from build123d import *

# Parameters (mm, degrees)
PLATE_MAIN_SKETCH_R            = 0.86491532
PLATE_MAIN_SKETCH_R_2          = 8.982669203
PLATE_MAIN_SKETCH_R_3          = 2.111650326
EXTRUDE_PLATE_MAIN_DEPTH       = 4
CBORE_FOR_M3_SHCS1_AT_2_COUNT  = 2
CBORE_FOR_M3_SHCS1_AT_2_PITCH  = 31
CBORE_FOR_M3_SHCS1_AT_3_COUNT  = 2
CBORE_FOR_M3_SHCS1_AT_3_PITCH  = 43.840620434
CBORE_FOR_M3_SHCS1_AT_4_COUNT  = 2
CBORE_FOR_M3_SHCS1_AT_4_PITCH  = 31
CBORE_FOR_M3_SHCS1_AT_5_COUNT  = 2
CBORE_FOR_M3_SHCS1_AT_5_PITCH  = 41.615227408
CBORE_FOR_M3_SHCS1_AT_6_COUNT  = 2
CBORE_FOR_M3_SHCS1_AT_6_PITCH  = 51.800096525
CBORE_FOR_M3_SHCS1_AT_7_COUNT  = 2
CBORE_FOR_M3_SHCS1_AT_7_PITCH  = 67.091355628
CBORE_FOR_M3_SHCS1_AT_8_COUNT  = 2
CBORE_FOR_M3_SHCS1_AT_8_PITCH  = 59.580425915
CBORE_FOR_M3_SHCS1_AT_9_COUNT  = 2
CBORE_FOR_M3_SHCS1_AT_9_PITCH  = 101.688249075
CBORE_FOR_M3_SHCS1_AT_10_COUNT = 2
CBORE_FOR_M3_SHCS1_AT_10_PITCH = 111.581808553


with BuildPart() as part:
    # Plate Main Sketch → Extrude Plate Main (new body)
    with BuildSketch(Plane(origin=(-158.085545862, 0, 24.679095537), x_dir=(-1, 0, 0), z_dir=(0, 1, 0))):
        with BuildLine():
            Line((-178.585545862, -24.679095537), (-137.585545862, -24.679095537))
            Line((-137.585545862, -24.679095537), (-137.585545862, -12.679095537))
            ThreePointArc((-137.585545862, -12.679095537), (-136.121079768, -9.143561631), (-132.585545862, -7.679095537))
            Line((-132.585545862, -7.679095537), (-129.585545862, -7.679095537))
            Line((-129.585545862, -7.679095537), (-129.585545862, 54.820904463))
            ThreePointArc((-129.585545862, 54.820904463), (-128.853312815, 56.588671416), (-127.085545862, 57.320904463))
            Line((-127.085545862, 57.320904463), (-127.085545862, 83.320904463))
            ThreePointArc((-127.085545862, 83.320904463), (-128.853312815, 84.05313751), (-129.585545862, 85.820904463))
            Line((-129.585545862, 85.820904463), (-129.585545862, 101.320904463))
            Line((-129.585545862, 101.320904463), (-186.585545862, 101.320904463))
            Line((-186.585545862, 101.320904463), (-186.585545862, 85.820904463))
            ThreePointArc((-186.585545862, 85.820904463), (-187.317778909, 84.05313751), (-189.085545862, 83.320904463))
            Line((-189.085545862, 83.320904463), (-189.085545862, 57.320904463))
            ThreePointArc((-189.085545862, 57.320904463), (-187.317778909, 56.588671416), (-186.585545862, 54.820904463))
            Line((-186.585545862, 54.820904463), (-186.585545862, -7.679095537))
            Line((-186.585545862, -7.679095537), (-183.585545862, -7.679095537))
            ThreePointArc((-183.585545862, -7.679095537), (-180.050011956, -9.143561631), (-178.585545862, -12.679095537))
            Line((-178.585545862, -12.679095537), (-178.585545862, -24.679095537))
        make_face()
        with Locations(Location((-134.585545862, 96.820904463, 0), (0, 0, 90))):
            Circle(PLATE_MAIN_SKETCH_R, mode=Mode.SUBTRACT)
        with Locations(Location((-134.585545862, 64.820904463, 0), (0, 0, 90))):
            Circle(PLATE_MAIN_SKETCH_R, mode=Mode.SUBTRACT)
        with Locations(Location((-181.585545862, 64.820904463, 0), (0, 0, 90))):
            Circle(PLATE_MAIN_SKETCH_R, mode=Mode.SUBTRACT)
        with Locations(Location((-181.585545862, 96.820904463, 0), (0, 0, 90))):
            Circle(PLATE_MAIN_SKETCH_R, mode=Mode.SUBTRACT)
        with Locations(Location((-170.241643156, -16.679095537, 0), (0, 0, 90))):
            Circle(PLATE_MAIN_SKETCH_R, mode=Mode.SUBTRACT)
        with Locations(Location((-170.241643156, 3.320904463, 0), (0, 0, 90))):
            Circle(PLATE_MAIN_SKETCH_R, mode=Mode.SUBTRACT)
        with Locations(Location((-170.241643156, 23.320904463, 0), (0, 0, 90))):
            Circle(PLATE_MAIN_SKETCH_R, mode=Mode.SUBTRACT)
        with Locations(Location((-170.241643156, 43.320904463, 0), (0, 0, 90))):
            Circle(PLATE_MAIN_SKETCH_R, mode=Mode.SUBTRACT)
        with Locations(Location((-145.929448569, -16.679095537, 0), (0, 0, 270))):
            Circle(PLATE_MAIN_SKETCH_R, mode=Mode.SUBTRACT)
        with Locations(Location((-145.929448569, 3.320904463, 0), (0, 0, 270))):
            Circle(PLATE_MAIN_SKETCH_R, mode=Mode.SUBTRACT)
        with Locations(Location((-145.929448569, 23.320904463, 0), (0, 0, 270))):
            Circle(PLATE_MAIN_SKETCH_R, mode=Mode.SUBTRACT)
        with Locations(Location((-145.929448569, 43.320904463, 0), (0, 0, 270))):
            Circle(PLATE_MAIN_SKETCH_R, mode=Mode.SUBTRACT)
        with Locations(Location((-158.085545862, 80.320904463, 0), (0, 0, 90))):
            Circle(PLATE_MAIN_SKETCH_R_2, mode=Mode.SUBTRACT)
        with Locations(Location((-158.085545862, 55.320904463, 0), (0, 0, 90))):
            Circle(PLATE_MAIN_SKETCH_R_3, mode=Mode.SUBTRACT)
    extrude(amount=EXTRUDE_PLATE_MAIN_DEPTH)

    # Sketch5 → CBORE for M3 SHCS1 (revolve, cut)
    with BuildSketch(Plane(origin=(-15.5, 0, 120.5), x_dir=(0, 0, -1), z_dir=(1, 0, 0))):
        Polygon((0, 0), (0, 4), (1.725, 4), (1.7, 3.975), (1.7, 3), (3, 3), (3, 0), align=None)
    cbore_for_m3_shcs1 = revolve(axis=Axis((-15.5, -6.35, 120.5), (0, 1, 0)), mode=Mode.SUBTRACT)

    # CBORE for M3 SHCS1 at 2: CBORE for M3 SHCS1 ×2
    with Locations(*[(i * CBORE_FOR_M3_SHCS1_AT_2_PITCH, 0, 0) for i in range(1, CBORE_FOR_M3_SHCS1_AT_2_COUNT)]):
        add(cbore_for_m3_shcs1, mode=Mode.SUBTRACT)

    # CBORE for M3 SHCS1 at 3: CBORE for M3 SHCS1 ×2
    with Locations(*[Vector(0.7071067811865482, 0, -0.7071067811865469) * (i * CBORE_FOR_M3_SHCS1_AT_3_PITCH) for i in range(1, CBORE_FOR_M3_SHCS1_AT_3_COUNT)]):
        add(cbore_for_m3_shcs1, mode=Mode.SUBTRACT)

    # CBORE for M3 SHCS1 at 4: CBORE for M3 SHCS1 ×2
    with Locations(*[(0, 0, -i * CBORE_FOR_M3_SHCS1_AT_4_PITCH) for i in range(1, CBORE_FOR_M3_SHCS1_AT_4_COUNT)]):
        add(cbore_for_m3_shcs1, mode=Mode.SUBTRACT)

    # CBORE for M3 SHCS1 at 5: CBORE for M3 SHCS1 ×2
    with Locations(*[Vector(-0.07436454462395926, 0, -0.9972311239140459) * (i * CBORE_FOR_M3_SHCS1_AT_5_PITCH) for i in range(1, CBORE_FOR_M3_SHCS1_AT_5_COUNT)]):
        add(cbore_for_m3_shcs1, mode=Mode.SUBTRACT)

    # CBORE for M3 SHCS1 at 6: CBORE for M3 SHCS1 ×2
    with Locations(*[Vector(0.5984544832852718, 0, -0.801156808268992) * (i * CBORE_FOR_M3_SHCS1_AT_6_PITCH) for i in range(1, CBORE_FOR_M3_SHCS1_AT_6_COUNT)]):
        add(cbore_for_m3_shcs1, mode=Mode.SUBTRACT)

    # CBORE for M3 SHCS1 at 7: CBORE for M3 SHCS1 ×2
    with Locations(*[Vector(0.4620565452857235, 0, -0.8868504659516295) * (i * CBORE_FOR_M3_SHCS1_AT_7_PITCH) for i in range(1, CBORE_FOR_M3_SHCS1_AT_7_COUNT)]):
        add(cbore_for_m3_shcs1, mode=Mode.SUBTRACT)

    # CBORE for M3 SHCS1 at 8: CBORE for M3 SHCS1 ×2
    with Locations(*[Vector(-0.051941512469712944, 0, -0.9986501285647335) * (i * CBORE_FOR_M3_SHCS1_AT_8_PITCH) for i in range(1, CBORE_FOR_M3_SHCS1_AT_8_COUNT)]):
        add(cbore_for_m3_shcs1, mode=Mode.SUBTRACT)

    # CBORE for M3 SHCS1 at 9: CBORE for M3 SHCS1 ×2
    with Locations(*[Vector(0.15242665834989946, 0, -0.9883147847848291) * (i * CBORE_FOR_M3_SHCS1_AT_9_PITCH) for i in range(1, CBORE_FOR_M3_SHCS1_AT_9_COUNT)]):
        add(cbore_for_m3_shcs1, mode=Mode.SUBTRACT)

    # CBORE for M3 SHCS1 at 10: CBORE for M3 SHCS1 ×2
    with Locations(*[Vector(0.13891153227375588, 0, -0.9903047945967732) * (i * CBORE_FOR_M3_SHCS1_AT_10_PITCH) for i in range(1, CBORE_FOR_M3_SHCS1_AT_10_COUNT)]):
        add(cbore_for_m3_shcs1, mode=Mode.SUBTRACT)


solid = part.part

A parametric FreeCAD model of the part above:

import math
import FreeCAD as App
import Part
import Sketcher
from FreeCAD import Vector
Q = App.Units.Quantity


def add_polygon(sketch, points):
    """Adds a closed chain of lines whose ends are joined by coincident constraints."""
    first, n = sketch.GeometryCount, len(points)
    for a, b in zip(points, points[1:] + points[:1]):
        sketch.addGeometry(Part.LineSegment(App.Vector(*a, 0), App.Vector(*b, 0)), False)
    for i in range(n):
        sketch.addConstraint(Sketcher.Constraint("Coincident", first + i, 2, first + (i + 1) % n, 1))

doc = App.newDocument("Part")
body = doc.addObject("PartDesign::Body", "Body")

sketch1 = body.newObject("Sketcher::SketchObject", "Sketch")
sketch1.AttachmentSupport = (doc.getObject("XZ_Plane"), [""])
sketch1.MapMode = "FlatFace"
sketch1.addGeometry(Part.LineSegment(Vector(20.5, 0, 0), Vector(-20.5, 0, 0)), False)
sketch1.addGeometry(Part.LineSegment(Vector(-20.5, 0, 0), Vector(-20.5, 12, 0)), False)
sketch1.addGeometry(Part.ArcOfCircle(Part.Circle(Vector(-25.5, 12, 0), Vector(0, 0, 1), 5), math.radians(0), math.radians(90)), False)
sketch1.addGeometry(Part.LineSegment(Vector(-25.5, 17, 0), Vector(-28.5, 17, 0)), False)
sketch1.addGeometry(Part.LineSegment(Vector(-28.5, 17, 0), Vector(-28.5, 79.5, 0)), False)
sketch1.addGeometry(Part.ArcOfCircle(Part.Circle(Vector(-31, 79.5, 0), Vector(0, 0, 1), 2.5), math.radians(0), math.radians(90)), False)
sketch1.addGeometry(Part.LineSegment(Vector(-31, 82, 0), Vector(-31, 108, 0)), False)
sketch1.addGeometry(Part.ArcOfCircle(Part.Circle(Vector(-31, 110.5, 0), Vector(0, 0, 1), 2.5), math.radians(-90), math.radians(0)), False)
sketch1.addGeometry(Part.LineSegment(Vector(-28.5, 110.5, 0), Vector(-28.5, 126, 0)), False)
sketch1.addGeometry(Part.LineSegment(Vector(-28.5, 126, 0), Vector(28.5, 126, 0)), False)
sketch1.addGeometry(Part.LineSegment(Vector(28.5, 126, 0), Vector(28.5, 110.5, 0)), False)
sketch1.addGeometry(Part.ArcOfCircle(Part.Circle(Vector(31, 110.5, 0), Vector(0, 0, 1), 2.5), math.radians(180), math.radians(270)), False)
sketch1.addGeometry(Part.LineSegment(Vector(31, 108, 0), Vector(31, 82, 0)), False)
sketch1.addGeometry(Part.ArcOfCircle(Part.Circle(Vector(31, 79.5, 0), Vector(0, 0, 1), 2.5), math.radians(90), math.radians(180)), False)
sketch1.addGeometry(Part.LineSegment(Vector(28.5, 79.5, 0), Vector(28.5, 17, 0)), False)
sketch1.addGeometry(Part.LineSegment(Vector(28.5, 17, 0), Vector(25.5, 17, 0)), False)
sketch1.addGeometry(Part.ArcOfCircle(Part.Circle(Vector(25.5, 12, 0), Vector(0, 0, 1), 5), math.radians(90), math.radians(180)), False)
sketch1.addGeometry(Part.LineSegment(Vector(20.5, 12, 0), Vector(20.5, 0, 0)), False)
sketch1.addGeometry(Part.Circle(Vector(12.2, 8, 0), Vector(0, 0, 1), 0.9), False)
sketch1.addGeometry(Part.Circle(Vector(12.2, 28, 0), Vector(0, 0, 1), 0.9), False)
sketch1.addGeometry(Part.Circle(Vector(12.2, 48, 0), Vector(0, 0, 1), 0.9), False)
sketch1.addGeometry(Part.Circle(Vector(-12.2, 8, 0), Vector(0, 0, 1), 0.9), False)
sketch1.addGeometry(Part.Circle(Vector(-12.2, 28, 0), Vector(0, 0, 1), 0.9), False)
sketch1.addGeometry(Part.Circle(Vector(-12.2, 48, 0), Vector(0, 0, 1), 0.9), False)
sketch1.addGeometry(Part.Circle(Vector(23.5, 89.5, 0), Vector(0, 0, 1), 0.9), False)
sketch1.addGeometry(Part.Circle(Vector(12.2, 68, 0), Vector(0, 0, 1), 0.9), False)
sketch1.addGeometry(Part.Circle(Vector(23.5, 121.5, 0), Vector(0, 0, 1), 0.9), False)
sketch1.addGeometry(Part.Circle(Vector(-12.2, 68, 0), Vector(0, 0, 1), 0.9), False)
sketch1.addGeometry(Part.Circle(Vector(0, 80, 0), Vector(0, 0, 1), 2.1), False)
sketch1.addGeometry(Part.Circle(Vector(-23.5, 89.5, 0), Vector(0, 0, 1), 0.9), False)
sketch1.addGeometry(Part.Circle(Vector(0, 105, 0), Vector(0, 0, 1), 9), False)
sketch1.addGeometry(Part.Circle(Vector(-23.5, 121.5, 0), Vector(0, 0, 1), 0.9), False)
sketch1.addConstraint(Sketcher.Constraint("Coincident", 0, 2, 1, 1))
sketch1.addConstraint(Sketcher.Constraint("Tangent", 1, 2, 2, 1))
sketch1.addConstraint(Sketcher.Constraint("Tangent", 2, 2, 3, 1))
sketch1.addConstraint(Sketcher.Constraint("Coincident", 3, 2, 4, 1))
sketch1.addConstraint(Sketcher.Constraint("Tangent", 4, 2, 5, 1))
sketch1.addConstraint(Sketcher.Constraint("Coincident", 5, 2, 6, 1))
sketch1.addConstraint(Sketcher.Constraint("Coincident", 6, 2, 7, 1))
sketch1.addConstraint(Sketcher.Constraint("Tangent", 7, 2, 8, 1))
sketch1.addConstraint(Sketcher.Constraint("Coincident", 8, 2, 9, 1))
sketch1.addConstraint(Sketcher.Constraint("Coincident", 9, 2, 10, 1))
sketch1.addConstraint(Sketcher.Constraint("Tangent", 10, 2, 11, 1))
sketch1.addConstraint(Sketcher.Constraint("Coincident", 11, 2, 12, 1))
sketch1.addConstraint(Sketcher.Constraint("Coincident", 12, 2, 13, 1))
sketch1.addConstraint(Sketcher.Constraint("Tangent", 13, 2, 14, 1))
sketch1.addConstraint(Sketcher.Constraint("Coincident", 14, 2, 15, 1))
sketch1.addConstraint(Sketcher.Constraint("Tangent", 15, 2, 16, 1))
sketch1.addConstraint(Sketcher.Constraint("Tangent", 16, 2, 17, 1))
sketch1.addConstraint(Sketcher.Constraint("Coincident", 17, 2, 0, 1))
sketch1.addConstraint(Sketcher.Constraint("Horizontal", 0))
sketch1.addConstraint(Sketcher.Constraint("Vertical", 1))
sketch1.addConstraint(Sketcher.Constraint("Horizontal", 3))
sketch1.addConstraint(Sketcher.Constraint("Vertical", 4))
sketch1.addConstraint(Sketcher.Constraint("Vertical", 6))
sketch1.addConstraint(Sketcher.Constraint("Vertical", 8))
sketch1.addConstraint(Sketcher.Constraint("Horizontal", 9))
sketch1.addConstraint(Sketcher.Constraint("Vertical", 10))
sketch1.addConstraint(Sketcher.Constraint("Vertical", 12))
sketch1.addConstraint(Sketcher.Constraint("Vertical", 14))
sketch1.addConstraint(Sketcher.Constraint("Horizontal", 15))
sketch1.addConstraint(Sketcher.Constraint("Vertical", 17))
sketch1.addConstraint(Sketcher.Constraint("Equal", 5, 7))
sketch1.addConstraint(Sketcher.Constraint("Equal", 7, 11))
sketch1.addConstraint(Sketcher.Constraint("Equal", 11, 13))
sketch1.addConstraint(Sketcher.Constraint("Equal", 2, 16))
sketch1.addConstraint(Sketcher.Constraint("Equal", 18, 19))
sketch1.addConstraint(Sketcher.Constraint("Equal", 19, 20))
sketch1.addConstraint(Sketcher.Constraint("Equal", 20, 21))
sketch1.addConstraint(Sketcher.Constraint("Equal", 21, 22))
sketch1.addConstraint(Sketcher.Constraint("Equal", 22, 23))
sketch1.addConstraint(Sketcher.Constraint("Equal", 23, 24))
sketch1.addConstraint(Sketcher.Constraint("Equal", 24, 25))
sketch1.addConstraint(Sketcher.Constraint("Equal", 25, 26))
sketch1.addConstraint(Sketcher.Constraint("Equal", 26, 27))
sketch1.addConstraint(Sketcher.Constraint("Equal", 27, 29))
sketch1.addConstraint(Sketcher.Constraint("Equal", 29, 31))
sketch1.addConstraint(Sketcher.Constraint("Symmetric", 0, 2, 17, 2, -1, 1))
sketch1.addConstraint(Sketcher.Constraint("Symmetric", 7, 3, 11, 3, -2))
sketch1.addConstraint(Sketcher.Constraint("Symmetric", 5, 3, 13, 3, -2))
sketch1.addConstraint(Sketcher.Constraint("Symmetric", 18, 3, 21, 3, -2))
sketch1.addConstraint(Sketcher.Constraint("Symmetric", 19, 3, 22, 3, -2))
sketch1.addConstraint(Sketcher.Constraint("Symmetric", 20, 3, 23, 3, -2))
sketch1.addConstraint(Sketcher.Constraint("Symmetric", 25, 3, 27, 3, -2))
sketch1.addConstraint(Sketcher.Constraint("Symmetric", 24, 3, 29, 3, -2))
sketch1.addConstraint(Sketcher.Constraint("Symmetric", 26, 3, 31, 3, -2))
sketch1.addConstraint(Sketcher.Constraint("PointOnObject", 28, 3, -2))
sketch1.addConstraint(Sketcher.Constraint("PointOnObject", 30, 3, -2))
sketch1.addConstraint(Sketcher.Constraint("Horizontal", 2, 3, 16, 3))
sketch1.addConstraint(Sketcher.Constraint("Vertical", 5, 3, 7, 3))
sketch1.addConstraint(Sketcher.Constraint("Vertical", 18, 3, 19, 3))
sketch1.addConstraint(Sketcher.Constraint("Vertical", 19, 3, 20, 3))
sketch1.addConstraint(Sketcher.Constraint("Vertical", 20, 3, 25, 3))
sketch1.addConstraint(Sketcher.Constraint("Vertical", 24, 3, 26, 3))
sketch1.addConstraint(Sketcher.Constraint("Vertical", 7, 3, 5, 2))
sketch1.addConstraint(Sketcher.Constraint("Vertical", 13, 3, 11, 2))
sketch1.addConstraint(Sketcher.Constraint("Radius", 2, 5.0))
sketch1.addConstraint(Sketcher.Constraint("Radius", 5, 2.5))
sketch1.addConstraint(Sketcher.Constraint("DistanceX", 0, 2, 0, 1, 41.0))
sketch1.addConstraint(Sketcher.Constraint("DistanceX", 3, 2, 3, 1, 3.0))
sketch1.addConstraint(Sketcher.Constraint("DistanceY", 1, 1, 1, 2, 12.0))
sketch1.addConstraint(Sketcher.Constraint("DistanceY", 6, 1, 6, 2, 26.0))
sketch1.addConstraint(Sketcher.Constraint("DistanceY", 4, 1, 4, 2, 62.5))
sketch1.addConstraint(Sketcher.Constraint("DistanceY", 8, 1, 8, 2, 15.5))
sketch1.addConstraint(Sketcher.Constraint("DistanceY", -1, 1, 18, 3, 8.0))
sketch1.addConstraint(Sketcher.Constraint("DistanceY", -1, 1, 19, 3, 28.0))
sketch1.addConstraint(Sketcher.Constraint("DistanceY", -1, 1, 20, 3, 48.0))
sketch1.addConstraint(Sketcher.Constraint("DistanceY", -1, 1, 25, 3, 68.0))
sketch1.addConstraint(Sketcher.Constraint("DistanceY", -1, 1, 28, 3, 80.0))
sketch1.addConstraint(Sketcher.Constraint("DistanceY", -1, 1, 30, 3, 105.0))
sketch1.addConstraint(Sketcher.Constraint("DistanceY", 13, 3, 24, 3, 10.0))
sketch1.addConstraint(Sketcher.Constraint("DistanceY", 11, 3, 26, 3, 11.0))
sketch1.addConstraint(Sketcher.Constraint("DistanceX", 31, 3, 26, 3, 47.0))
sketch1.addConstraint(Sketcher.Constraint("Diameter", 28, 4.223301))
sketch1.addConstraint(Sketcher.Constraint("Diameter", 18, 1.729831))
sketch1.addConstraint(Sketcher.Constraint("Diameter", 30, 17.965338))
sketch1.addConstraint(Sketcher.Constraint("DistanceX", -1, 1, 18, 3, 12.156097))
pad1 = body.newObject("PartDesign::Pad", "Pad")
pad1.Profile = sketch1
pad1.Length = 4
pad1.Reversed = True

sketch2 = body.newObject("Sketcher::SketchObject", "Sketch001")
sketch2.AttachmentSupport = (doc.getObject("YZ_Plane"), [""])
sketch2.MapMode = "FlatFace"
sketch2.AttachmentOffset = App.Placement(Vector(0, 0, -15.5), App.Rotation())
add_polygon(sketch2, [(4, 120.5), (0, 120.5), (0, 117.5), (3, 117.5), (3, 118.8), (3.975, 118.8), (4, 118.775)])
sketch2.addGeometry(Part.LineSegment(Vector(0, 120.5, 0), Vector(4, 120.5, 0)), True)
sketch2.addConstraint(Sketcher.Constraint("Horizontal", 0))
sketch2.addConstraint(Sketcher.Constraint("Vertical", 1))
sketch2.addConstraint(Sketcher.Constraint("Horizontal", 2))
sketch2.addConstraint(Sketcher.Constraint("Vertical", 3))
sketch2.addConstraint(Sketcher.Constraint("Horizontal", 4))
sketch2.addConstraint(Sketcher.Constraint("Vertical", 6))
sketch2.addConstraint(Sketcher.Constraint("Horizontal", 7))
sketch2.addConstraint(Sketcher.Constraint("Coincident", 7, 1, 0, 2))
sketch2.addConstraint(Sketcher.Constraint("PointOnObject", 0, 2, -2))
sketch2.addConstraint(Sketcher.Constraint("Vertical", 5, 2, 7, 2))
sketch2.addConstraint(Sketcher.Constraint("Equal", 2, 1))
sketch2.addConstraint(Sketcher.Constraint("DistanceX", 0, 2, 0, 1, 4.0))
sketch2.addConstraint(Sketcher.Constraint("DistanceX", 2, 1, 2, 2, 3.0))
sketch2.addConstraint(Sketcher.Constraint("Angle", 5, Q("-45 deg")))
sketch2.addConstraint(Sketcher.Constraint("DistanceY", 3, 1, 3, 2, 1.3))
sketch2.addConstraint(Sketcher.Constraint("DistanceY", -1, 1, 0, 2, 120.5))
sketch2.addConstraint(Sketcher.Constraint("DistanceX", 4, 1, 4, 2, 0.975))
groove = body.newObject("PartDesign::Groove", "Groove")
groove.Profile = sketch2
groove.ReferenceAxis = (sketch2, ["Axis0"])
groove.Angle = 360
doc.recompute()

linearpattern = body.newObject("PartDesign::LinearPattern", "LinearPattern")
linearpattern.Originals = [groove]
linearpattern.Direction = (doc.getObject("X_Axis"), [""])
linearpattern.Mode = "offset"
linearpattern.Offset = 31
linearpattern.Occurrences = 2
body.Tip = linearpattern
doc.recompute()

datumline = body.newObject("PartDesign::Line", "DatumLine")
datumline.Placement = App.Placement(Vector(0, 0, 0), App.Rotation(Vector(0, 0, 1), Vector(0.707106781, 0, -0.707106781)))
linearpattern2 = body.newObject("PartDesign::LinearPattern", "LinearPattern001")
linearpattern2.Originals = [groove]
linearpattern2.Direction = (datumline, [""])
linearpattern2.Mode = "offset"
linearpattern2.Offset = 43.84062
linearpattern2.Occurrences = 2
body.Tip = linearpattern2
doc.recompute()

linearpattern3 = body.newObject("PartDesign::LinearPattern", "LinearPattern002")
linearpattern3.Originals = [groove]
linearpattern3.Direction = (doc.getObject("Z_Axis"), [""])
linearpattern3.Mode = "offset"
linearpattern3.Offset = 31
linearpattern3.Occurrences = 2
linearpattern3.Reversed = True
body.Tip = linearpattern3
doc.recompute()

datumline2 = body.newObject("PartDesign::Line", "DatumLine001")
datumline2.Placement = App.Placement(Vector(0, 0, 0), App.Rotation(Vector(0, 0, 1), Vector(-0.074364545, 0, -0.997231124)))
linearpattern4 = body.newObject("PartDesign::LinearPattern", "LinearPattern003")
linearpattern4.Originals = [groove]
linearpattern4.Direction = (datumline2, [""])
linearpattern4.Mode = "offset"
linearpattern4.Offset = 41.615227
linearpattern4.Occurrences = 2
body.Tip = linearpattern4
doc.recompute()

datumline3 = body.newObject("PartDesign::Line", "DatumLine002")
datumline3.Placement = App.Placement(Vector(0, 0, 0), App.Rotation(Vector(0, 0, 1), Vector(0.598454483, 0, -0.801156808)))
linearpattern5 = body.newObject("PartDesign::LinearPattern", "LinearPattern004")
linearpattern5.Originals = [groove]
linearpattern5.Direction = (datumline3, [""])
linearpattern5.Mode = "offset"
linearpattern5.Offset = 51.800097
linearpattern5.Occurrences = 2
body.Tip = linearpattern5
doc.recompute()

datumline4 = body.newObject("PartDesign::Line", "DatumLine003")
datumline4.Placement = App.Placement(Vector(0, 0, 0), App.Rotation(Vector(0, 0, 1), Vector(0.462056545, 0, -0.886850466)))
linearpattern6 = body.newObject("PartDesign::LinearPattern", "LinearPattern005")
linearpattern6.Originals = [groove]
linearpattern6.Direction = (datumline4, [""])
linearpattern6.Mode = "offset"
linearpattern6.Offset = 67.091356
linearpattern6.Occurrences = 2
body.Tip = linearpattern6
doc.recompute()

datumline5 = body.newObject("PartDesign::Line", "DatumLine004")
datumline5.Placement = App.Placement(Vector(0, 0, 0), App.Rotation(Vector(0, 0, 1), Vector(-0.051941512, 0, -0.998650129)))
linearpattern7 = body.newObject("PartDesign::LinearPattern", "LinearPattern006")
linearpattern7.Originals = [groove]
linearpattern7.Direction = (datumline5, [""])
linearpattern7.Mode = "offset"
linearpattern7.Offset = 59.580426
linearpattern7.Occurrences = 2
body.Tip = linearpattern7
doc.recompute()

datumline6 = body.newObject("PartDesign::Line", "DatumLine005")
datumline6.Placement = App.Placement(Vector(0, 0, 0), App.Rotation(Vector(0, 0, 1), Vector(0.152426658, 0, -0.988314785)))
linearpattern8 = body.newObject("PartDesign::LinearPattern", "LinearPattern007")
linearpattern8.Originals = [groove]
linearpattern8.Direction = (datumline6, [""])
linearpattern8.Mode = "offset"
linearpattern8.Offset = 101.688249
linearpattern8.Occurrences = 2
body.Tip = linearpattern8
doc.recompute()

datumline7 = body.newObject("PartDesign::Line", "DatumLine006")
datumline7.Placement = App.Placement(Vector(0, 0, 0), App.Rotation(Vector(0, 0, 1), Vector(0.138911532, 0, -0.990304795)))
linearpattern9 = body.newObject("PartDesign::LinearPattern", "LinearPattern008")
linearpattern9.Originals = [groove]
linearpattern9.Direction = (datumline7, [""])
linearpattern9.Mode = "offset"
linearpattern9.Offset = 111.581809
linearpattern9.Occurrences = 2
body.Tip = linearpattern9

doc.recompute()
